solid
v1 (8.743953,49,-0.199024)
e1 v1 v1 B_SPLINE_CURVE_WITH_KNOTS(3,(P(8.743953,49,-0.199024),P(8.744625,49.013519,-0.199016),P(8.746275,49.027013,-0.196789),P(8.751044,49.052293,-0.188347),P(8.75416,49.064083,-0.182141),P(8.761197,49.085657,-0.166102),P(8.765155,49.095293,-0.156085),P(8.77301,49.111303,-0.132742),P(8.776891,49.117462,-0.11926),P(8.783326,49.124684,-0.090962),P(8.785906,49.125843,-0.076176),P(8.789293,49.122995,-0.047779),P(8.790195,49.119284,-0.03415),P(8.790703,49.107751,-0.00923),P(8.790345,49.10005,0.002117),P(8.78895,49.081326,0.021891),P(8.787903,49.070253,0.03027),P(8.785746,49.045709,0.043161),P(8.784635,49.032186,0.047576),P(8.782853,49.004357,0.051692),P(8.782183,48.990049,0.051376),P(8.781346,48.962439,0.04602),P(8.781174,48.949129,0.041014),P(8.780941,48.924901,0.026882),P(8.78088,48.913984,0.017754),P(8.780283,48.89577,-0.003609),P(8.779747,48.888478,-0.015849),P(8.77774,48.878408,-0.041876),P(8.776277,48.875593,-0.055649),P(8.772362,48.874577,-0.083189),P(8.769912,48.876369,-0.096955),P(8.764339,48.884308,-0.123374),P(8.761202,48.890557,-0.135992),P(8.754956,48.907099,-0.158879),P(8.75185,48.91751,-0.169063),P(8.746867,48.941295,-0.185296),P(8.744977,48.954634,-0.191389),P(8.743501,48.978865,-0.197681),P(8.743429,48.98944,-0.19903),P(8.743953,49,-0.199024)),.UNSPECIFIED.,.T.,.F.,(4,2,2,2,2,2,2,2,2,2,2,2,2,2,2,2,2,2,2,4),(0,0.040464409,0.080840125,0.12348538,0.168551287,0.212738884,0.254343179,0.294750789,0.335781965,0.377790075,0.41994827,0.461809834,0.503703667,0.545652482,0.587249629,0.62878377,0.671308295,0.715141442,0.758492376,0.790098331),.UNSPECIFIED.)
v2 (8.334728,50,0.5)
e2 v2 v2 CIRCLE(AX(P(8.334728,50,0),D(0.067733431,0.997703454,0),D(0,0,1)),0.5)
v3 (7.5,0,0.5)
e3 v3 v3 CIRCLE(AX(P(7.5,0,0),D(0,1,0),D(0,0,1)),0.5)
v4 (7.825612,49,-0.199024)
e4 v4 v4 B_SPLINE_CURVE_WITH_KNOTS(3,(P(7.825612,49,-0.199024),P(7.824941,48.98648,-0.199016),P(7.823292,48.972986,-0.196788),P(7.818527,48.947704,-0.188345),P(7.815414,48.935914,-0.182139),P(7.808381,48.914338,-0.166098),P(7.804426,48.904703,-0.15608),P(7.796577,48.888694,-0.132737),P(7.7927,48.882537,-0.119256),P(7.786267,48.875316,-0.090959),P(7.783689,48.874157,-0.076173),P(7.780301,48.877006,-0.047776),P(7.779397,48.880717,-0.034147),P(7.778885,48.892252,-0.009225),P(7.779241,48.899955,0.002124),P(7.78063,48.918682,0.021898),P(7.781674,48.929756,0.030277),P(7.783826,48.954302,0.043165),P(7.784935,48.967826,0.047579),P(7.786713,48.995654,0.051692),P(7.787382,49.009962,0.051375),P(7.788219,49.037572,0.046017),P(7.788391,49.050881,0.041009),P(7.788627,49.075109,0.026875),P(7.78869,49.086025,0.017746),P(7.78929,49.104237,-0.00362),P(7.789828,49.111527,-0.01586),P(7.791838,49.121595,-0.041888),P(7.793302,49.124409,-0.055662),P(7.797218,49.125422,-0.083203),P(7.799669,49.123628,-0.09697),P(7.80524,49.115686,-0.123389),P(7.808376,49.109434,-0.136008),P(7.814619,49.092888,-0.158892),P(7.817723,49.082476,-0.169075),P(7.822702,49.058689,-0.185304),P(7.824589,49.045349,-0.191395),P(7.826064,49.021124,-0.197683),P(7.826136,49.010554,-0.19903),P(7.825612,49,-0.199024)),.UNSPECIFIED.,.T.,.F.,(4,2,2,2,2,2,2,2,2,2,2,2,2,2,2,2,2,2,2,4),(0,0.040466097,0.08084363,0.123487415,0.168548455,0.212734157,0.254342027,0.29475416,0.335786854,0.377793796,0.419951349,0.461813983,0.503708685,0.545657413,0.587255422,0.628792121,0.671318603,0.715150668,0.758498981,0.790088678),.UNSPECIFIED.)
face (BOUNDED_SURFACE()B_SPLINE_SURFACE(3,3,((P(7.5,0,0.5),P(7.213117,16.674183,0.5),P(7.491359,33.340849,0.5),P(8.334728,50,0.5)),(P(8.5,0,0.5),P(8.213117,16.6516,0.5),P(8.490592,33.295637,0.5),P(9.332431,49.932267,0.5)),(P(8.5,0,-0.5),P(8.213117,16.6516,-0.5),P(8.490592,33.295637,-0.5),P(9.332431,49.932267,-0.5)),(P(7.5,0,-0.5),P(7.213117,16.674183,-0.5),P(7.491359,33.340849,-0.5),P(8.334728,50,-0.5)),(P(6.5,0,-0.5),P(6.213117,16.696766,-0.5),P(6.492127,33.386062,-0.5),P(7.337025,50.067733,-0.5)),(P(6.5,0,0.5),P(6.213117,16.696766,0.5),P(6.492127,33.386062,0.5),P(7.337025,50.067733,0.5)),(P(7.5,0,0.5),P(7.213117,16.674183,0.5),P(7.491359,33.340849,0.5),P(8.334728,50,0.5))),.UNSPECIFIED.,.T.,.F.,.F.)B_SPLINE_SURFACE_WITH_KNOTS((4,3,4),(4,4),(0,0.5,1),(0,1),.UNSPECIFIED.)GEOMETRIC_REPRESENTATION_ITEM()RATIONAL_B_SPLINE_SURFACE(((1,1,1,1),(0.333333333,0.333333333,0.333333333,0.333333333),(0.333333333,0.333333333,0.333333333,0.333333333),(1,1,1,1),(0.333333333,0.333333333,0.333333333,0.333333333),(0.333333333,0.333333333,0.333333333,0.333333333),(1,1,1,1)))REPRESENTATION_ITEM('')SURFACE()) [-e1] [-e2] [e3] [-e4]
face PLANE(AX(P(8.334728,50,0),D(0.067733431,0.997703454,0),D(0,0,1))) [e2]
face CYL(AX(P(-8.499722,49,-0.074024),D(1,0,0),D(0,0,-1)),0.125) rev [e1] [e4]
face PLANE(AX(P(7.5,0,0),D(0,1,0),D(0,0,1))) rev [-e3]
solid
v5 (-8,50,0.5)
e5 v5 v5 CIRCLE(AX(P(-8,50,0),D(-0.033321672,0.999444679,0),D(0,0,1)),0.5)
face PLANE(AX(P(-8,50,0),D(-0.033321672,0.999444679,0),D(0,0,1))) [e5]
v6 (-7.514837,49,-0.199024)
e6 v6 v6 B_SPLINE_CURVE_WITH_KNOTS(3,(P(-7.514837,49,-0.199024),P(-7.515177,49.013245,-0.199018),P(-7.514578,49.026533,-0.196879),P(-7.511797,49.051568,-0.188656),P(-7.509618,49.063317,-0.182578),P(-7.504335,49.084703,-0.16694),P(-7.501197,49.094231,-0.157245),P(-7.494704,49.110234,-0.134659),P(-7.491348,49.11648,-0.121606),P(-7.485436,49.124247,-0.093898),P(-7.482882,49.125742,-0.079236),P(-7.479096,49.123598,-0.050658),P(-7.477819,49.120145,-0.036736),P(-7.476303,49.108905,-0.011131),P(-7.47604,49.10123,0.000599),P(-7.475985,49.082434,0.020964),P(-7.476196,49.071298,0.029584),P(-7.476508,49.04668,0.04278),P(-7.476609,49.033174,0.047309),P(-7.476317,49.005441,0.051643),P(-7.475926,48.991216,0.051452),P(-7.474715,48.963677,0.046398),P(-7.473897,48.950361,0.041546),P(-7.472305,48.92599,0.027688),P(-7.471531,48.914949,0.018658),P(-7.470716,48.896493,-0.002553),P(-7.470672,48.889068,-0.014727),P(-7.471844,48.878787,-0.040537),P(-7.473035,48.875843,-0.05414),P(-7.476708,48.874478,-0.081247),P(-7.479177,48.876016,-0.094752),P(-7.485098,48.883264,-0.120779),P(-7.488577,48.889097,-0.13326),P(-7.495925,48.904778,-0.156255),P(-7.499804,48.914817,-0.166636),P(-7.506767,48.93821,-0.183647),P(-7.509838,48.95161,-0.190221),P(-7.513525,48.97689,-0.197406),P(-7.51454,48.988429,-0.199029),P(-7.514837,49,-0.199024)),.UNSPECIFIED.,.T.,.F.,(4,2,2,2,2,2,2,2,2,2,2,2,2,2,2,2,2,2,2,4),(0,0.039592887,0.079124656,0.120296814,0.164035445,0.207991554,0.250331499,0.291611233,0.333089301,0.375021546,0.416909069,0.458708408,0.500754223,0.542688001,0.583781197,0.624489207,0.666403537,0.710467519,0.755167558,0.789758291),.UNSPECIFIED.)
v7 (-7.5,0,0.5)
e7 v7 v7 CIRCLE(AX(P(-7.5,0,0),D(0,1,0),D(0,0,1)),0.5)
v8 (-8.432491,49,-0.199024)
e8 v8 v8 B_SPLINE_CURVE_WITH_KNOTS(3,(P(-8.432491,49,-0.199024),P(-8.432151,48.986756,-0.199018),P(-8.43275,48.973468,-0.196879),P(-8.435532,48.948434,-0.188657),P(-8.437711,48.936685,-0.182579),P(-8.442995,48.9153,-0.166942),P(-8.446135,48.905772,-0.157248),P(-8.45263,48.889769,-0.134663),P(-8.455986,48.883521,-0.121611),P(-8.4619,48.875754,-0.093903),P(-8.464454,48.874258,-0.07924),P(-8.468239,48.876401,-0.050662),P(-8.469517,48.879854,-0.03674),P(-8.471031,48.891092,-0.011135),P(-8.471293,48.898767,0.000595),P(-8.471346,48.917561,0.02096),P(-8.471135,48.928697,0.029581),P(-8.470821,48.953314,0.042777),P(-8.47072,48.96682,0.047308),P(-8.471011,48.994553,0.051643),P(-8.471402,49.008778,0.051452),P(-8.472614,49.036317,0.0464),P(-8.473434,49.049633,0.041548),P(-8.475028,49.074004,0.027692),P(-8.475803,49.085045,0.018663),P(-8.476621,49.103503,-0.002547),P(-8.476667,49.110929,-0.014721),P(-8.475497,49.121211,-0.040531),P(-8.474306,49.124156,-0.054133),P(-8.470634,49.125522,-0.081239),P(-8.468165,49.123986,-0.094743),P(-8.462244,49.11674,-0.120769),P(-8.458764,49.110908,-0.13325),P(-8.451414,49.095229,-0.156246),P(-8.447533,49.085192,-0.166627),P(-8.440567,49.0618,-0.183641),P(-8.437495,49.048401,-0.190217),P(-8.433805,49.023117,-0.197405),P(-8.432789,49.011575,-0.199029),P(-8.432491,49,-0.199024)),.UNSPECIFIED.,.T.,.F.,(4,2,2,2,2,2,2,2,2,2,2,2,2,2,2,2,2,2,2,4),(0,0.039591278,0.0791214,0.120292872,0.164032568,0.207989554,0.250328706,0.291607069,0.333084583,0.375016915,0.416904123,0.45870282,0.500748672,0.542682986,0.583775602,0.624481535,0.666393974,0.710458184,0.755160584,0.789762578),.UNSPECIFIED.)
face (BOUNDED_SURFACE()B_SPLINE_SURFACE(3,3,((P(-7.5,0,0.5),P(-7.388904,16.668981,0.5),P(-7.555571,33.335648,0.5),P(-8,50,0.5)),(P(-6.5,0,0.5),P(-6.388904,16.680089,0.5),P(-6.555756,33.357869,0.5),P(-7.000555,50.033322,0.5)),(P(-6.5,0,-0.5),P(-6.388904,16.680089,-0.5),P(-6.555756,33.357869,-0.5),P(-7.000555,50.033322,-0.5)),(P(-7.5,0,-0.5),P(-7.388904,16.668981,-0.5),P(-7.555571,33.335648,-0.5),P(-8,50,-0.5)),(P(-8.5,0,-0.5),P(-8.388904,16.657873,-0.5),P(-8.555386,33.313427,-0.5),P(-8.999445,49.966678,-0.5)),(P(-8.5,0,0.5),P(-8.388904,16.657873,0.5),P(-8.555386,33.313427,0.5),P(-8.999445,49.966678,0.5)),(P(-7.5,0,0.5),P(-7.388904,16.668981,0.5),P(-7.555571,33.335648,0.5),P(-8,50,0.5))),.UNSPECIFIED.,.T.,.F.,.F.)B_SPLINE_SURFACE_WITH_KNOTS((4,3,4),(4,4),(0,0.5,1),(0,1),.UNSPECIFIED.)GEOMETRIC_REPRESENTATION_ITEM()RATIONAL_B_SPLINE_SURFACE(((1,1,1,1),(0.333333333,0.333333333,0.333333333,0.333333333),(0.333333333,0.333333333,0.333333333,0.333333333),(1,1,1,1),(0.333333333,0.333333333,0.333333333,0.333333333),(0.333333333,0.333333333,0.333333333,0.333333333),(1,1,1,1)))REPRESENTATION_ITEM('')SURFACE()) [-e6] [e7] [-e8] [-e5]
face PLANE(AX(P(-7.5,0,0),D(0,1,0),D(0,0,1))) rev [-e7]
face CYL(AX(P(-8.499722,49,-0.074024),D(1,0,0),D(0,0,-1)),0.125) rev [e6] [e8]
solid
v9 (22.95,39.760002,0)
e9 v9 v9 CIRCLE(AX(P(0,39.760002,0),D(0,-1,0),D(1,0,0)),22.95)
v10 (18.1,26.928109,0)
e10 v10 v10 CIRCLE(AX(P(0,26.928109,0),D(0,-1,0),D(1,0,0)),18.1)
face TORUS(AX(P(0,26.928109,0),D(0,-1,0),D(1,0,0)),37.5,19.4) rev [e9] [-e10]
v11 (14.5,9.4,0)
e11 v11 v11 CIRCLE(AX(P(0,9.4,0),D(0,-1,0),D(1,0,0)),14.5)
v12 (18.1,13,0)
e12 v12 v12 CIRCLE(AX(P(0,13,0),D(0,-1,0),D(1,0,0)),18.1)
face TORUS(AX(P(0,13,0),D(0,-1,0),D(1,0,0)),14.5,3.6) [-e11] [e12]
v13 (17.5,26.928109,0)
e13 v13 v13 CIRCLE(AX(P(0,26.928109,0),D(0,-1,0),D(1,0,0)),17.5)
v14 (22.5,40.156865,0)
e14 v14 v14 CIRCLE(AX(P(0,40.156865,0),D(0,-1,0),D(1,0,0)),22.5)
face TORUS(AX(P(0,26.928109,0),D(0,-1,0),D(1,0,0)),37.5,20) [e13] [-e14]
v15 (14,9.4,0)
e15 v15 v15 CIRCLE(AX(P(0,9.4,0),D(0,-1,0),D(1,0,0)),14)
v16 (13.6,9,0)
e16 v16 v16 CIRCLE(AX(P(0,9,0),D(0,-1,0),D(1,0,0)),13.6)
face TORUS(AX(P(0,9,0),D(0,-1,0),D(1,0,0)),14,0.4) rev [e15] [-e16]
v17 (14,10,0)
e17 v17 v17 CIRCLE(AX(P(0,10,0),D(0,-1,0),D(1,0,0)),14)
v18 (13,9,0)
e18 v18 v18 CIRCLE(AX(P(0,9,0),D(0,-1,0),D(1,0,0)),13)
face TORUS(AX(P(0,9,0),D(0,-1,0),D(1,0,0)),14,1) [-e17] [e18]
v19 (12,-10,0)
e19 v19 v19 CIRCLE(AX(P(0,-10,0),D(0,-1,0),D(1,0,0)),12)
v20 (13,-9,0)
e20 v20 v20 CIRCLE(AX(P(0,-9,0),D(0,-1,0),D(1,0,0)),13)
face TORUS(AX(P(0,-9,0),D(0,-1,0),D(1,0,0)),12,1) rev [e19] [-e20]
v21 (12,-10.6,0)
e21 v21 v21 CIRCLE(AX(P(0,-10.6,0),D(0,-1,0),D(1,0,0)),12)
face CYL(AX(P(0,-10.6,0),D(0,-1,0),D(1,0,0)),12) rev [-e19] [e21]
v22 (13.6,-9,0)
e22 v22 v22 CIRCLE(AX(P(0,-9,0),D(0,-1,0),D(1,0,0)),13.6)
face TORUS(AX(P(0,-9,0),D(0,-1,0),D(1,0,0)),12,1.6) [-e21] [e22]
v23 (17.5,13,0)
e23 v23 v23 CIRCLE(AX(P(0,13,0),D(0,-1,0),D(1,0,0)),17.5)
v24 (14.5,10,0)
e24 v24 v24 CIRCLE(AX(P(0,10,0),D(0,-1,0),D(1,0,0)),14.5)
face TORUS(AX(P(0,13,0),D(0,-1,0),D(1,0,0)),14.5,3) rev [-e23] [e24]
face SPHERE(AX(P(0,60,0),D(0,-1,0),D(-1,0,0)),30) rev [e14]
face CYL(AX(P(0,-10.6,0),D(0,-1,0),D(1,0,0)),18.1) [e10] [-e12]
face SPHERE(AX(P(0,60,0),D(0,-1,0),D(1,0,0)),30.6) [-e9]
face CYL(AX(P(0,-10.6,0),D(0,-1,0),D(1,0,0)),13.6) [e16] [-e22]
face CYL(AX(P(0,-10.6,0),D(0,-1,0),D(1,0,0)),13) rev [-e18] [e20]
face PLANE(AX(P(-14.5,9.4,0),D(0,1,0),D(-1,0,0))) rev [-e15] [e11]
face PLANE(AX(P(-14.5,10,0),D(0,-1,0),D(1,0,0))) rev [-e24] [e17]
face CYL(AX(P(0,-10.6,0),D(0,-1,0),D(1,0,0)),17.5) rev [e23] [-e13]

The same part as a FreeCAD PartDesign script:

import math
import FreeCAD as App
import Part
import Sketcher
from FreeCAD import Vector

doc = App.newDocument("Part")
body = doc.addObject("PartDesign::Body", "Body")

# Sketch on XZ plane
sketch1 = body.newObject("Sketcher::SketchObject", "Sketch")
sketch1.AttachmentSupport = (doc.getObject("XZ_Plane"), [""])
sketch1.MapMode = "FlatFace"
sketch1.addGeometry(Part.Circle(Vector(7.5, 0, 0), Vector(0, 0, 1), 0.5), False)
sketch1.addConstraint([
    Sketcher.Constraint("PointOnObject", 0, 3, -1),
    Sketcher.Constraint("Diameter", 0, 1.0),
    Sketcher.Constraint("DistanceX", -1, 1, 0, 3, 7.5),
])

# Sketch on XY plane
sketch2 = body.newObject("Sketcher::SketchObject", "Sketch001")
sketch2.AttachmentSupport = (doc.getObject("XY_Plane"), [""])
sketch2.MapMode = "FlatFace"
sketch2.addGeometry(Part.BSplineCurve([Vector(7.5, 0, 0), Vector(7.069675, 25.011274, 0), Vector(8.334728, 50, 0)], [3, 3], [0, 1], False, 2, [1, 1, 1], False), False)
sketch2.addConstraint(Sketcher.Constraint("Block", 0))
doc.recompute()

additivepipe = body.newObject("PartDesign::AdditivePipe", "AdditivePipe")
additivepipe.Profile = sketch1
additivepipe.Spine = (sketch2, ["Edge1"])
body2 = doc.addObject("PartDesign::Body", "Body001")

# Sketch on XZ plane
sketch3 = body2.newObject("Sketcher::SketchObject", "Sketch002")
sketch3.AttachmentSupport = (doc.getObject("XZ_Plane001"), [""])
sketch3.MapMode = "FlatFace"
sketch3.addGeometry(Part.Circle(Vector(-7.5, 0, 0), Vector(0, 0, 1), 0.5), False)
sketch3.addConstraint([
    Sketcher.Constraint("PointOnObject", 0, 3, -1),
    Sketcher.Constraint("Diameter", 0, 1.0),
    Sketcher.Constraint("DistanceX", 0, 3, -1, 1, 7.5),
])

# Sketch on XY plane
sketch4 = body2.newObject("Sketcher::SketchObject", "Sketch003")
sketch4.AttachmentSupport = (doc.getObject("XY_Plane001"), [""])
sketch4.MapMode = "FlatFace"
sketch4.addGeometry(Part.BSplineCurve([Vector(-7.5, 0, 0), Vector(-7.333356, 25.003472, 0), Vector(-8, 50, 0)], [3, 3], [0, 1], False, 2, [1, 1, 1], False), False)
sketch4.addConstraint(Sketcher.Constraint("Block", 0))
doc.recompute()

additivepipe2 = body2.newObject("PartDesign::AdditivePipe", "AdditivePipe001")
additivepipe2.Profile = sketch3
additivepipe2.Spine = (sketch4, ["Edge1"])
body3 = doc.addObject("PartDesign::Body", "Body002")

# Sketch on YZ plane
sketch5 = body3.newObject("Sketcher::SketchObject", "Sketch004")
sketch5.AttachmentSupport = (doc.getObject("YZ_Plane002"), [""])
sketch5.MapMode = "FlatFace"
sketch5.addGeometry(Part.Circle(Vector(49, -0.07, 0), Vector(0, 0, 1), 0.12), False)
sketch5.addConstraint([
    Sketcher.Constraint("Diameter", 0, 0.25),
    Sketcher.Constraint("DistanceX", -1, 1, 0, 3, 49.0),
    Sketcher.Constraint("DistanceY", 0, 3, -1, 1, 0.074024),
])
pad1 = body3.newObject("PartDesign::Pad", "Pad")
pad1.Profile = sketch5
pad1.Type = "TwoLengths"
pad1.Length = 9.83358
pad1.Length2 = 9.499722
doc.recompute()

body4 = doc.addObject("PartDesign::Body", "Body003")
body4.BaseFeature = body3
boolean = body.newObject("PartDesign::Boolean", "Boolean")
boolean.Type = "Cut"
boolean.addObjects([body4])
doc.recompute()

boolean2 = body2.newObject("PartDesign::Boolean", "Boolean001")
boolean2.Type = "Cut"
boolean2.addObjects([body3])
body5 = doc.addObject("PartDesign::Body", "Body004")

# Sketch on XY plane
sketch6 = body5.newObject("Sketcher::SketchObject", "Sketch005")
sketch6.AttachmentSupport = (doc.getObject("XY_Plane004"), [""])
sketch6.MapMode = "FlatFace"
sketch6.addGeometry([
    Part.LineSegment(Vector(0, 90, 0), Vector(0, 90.6, 0)),  # 0
    Part.ArcOfCircle(Part.Circle(Vector(0, 60, 0), Vector(0, 0, 1), 30.6), math.radians(90), math.radians(221)),  # 1
    Part.ArcOfCircle(Part.Circle(Vector(-37.5, 26.93, 0), Vector(0, 0, 1), 19.4), math.radians(0), math.radians(41)),  # 2
    Part.LineSegment(Vector(-18.1, 26.93, 0), Vector(-18.1, 13, 0)),  # 3
    Part.ArcOfCircle(Part.Circle(Vector(-14.5, 13, 0), Vector(0, 0, 1), 3.6), math.radians(-180), math.radians(-90)),  # 4
    Part.LineSegment(Vector(-14.5, 9.4, 0), Vector(-14, 9.4, 0)),  # 5
    Part.ArcOfCircle(Part.Circle(Vector(-14, 9, 0), Vector(0, 0, 1), 0.4), math.radians(0), math.radians(90)),  # 6
    Part.LineSegment(Vector(-13.6, 9, 0), Vector(-13.6, -9, 0)),  # 7
    Part.ArcOfCircle(Part.Circle(Vector(-12, -9, 0), Vector(0, 0, 1), 1.6), math.radians(180), math.radians(270)),  # 8
    Part.LineSegment(Vector(-12, -10.6, 0), Vector(-12, -10, 0)),  # 9
    Part.ArcOfCircle(Part.Circle(Vector(-12, -9, 0), Vector(0, 0, 1), 1), math.radians(-180), math.radians(-90)),  # 10
    Part.LineSegment(Vector(-13, -9, 0), Vector(-13, 9, 0)),  # 11
    Part.ArcOfCircle(Part.Circle(Vector(-14, 9, 0), Vector(0, 0, 1), 1), math.radians(0), math.radians(90)),  # 12
    Part.LineSegment(Vector(-14, 10, 0), Vector(-14.5, 10, 0)),  # 13
    Part.ArcOfCircle(Part.Circle(Vector(-14.5, 13, 0), Vector(0, 0, 1), 3), math.radians(180), math.radians(270)),  # 14
    Part.LineSegment(Vector(-17.5, 13, 0), Vector(-17.5, 26.93, 0)),  # 15
    Part.ArcOfCircle(Part.Circle(Vector(-37.5, 26.93, 0), Vector(0, 0, 1), 20), math.radians(0), math.radians(41)),  # 16
    Part.ArcOfCircle(Part.Circle(Vector(0, 60, 0), Vector(0, 0, 1), 30), math.radians(90), math.radians(221)),  # 17
], False)
sketch6.addConstraint([
    Sketcher.Constraint("Coincident", 0, 2, 1, 1),
    Sketcher.Constraint("Tangent", 1, 2, 2, 2),
    Sketcher.Constraint("Tangent", 2, 1, 3, 1),
    Sketcher.Constraint("Tangent", 3, 2, 4, 1),
    Sketcher.Constraint("Tangent", 4, 2, 5, 1),
    Sketcher.Constraint("Tangent", 5, 2, 6, 2),
    Sketcher.Constraint("Tangent", 6, 1, 7, 1),
    Sketcher.Constraint("Tangent", 7, 2, 8, 1),
    Sketcher.Constraint("Coincident", 8, 2, 9, 1),
    Sketcher.Constraint("Coincident", 9, 2, 10, 2),
    Sketcher.Constraint("Tangent", 10, 1, 11, 1),
    Sketcher.Constraint("Tangent", 11, 2, 12, 1),
    Sketcher.Constraint("Tangent", 12, 2, 13, 1),
    Sketcher.Constraint("Tangent", 13, 2, 14, 2),
    Sketcher.Constraint("Tangent", 14, 1, 15, 1),
    Sketcher.Constraint("Tangent", 15, 2, 16, 1),
    Sketcher.Constraint("Tangent", 16, 2, 17, 2),
    Sketcher.Constraint("Coincident", 17, 1, 0, 1),
    Sketcher.Constraint("Vertical", 0),
    Sketcher.Constraint("Vertical", 3),
    Sketcher.Constraint("Horizontal", 5),
    Sketcher.Constraint("Vertical", 7),
    Sketcher.Constraint("Vertical", 9),
    Sketcher.Constraint("Vertical", 11),
    Sketcher.Constraint("Horizontal", 13),
    Sketcher.Constraint("Vertical", 15),
    Sketcher.Constraint("Coincident", 10, 3, 8, 3),
    Sketcher.Constraint("Coincident", 12, 3, 6, 3),
    Sketcher.Constraint("Coincident", 14, 3, 4, 3),
    Sketcher.Constraint("Coincident", 16, 3, 2, 3),
    Sketcher.Constraint("Coincident", 17, 3, 1, 3),
    Sketcher.Constraint("Equal", 10, 12),
    Sketcher.Constraint("PointOnObject", 1, 3, -2),
    Sketcher.Constraint("PointOnObject", 0, 2, -2),
    Sketcher.Constraint("Vertical", 10, 3, 8, 2),
    Sketcher.Constraint("Radius", 10, 1.0),
    Sketcher.Constraint("Radius", 14, 3.0),
    Sketcher.Constraint("Radius", 16, 20.0),
    Sketcher.Constraint("Radius", 17, 30.0),
    Sketcher.Constraint("Radius", 1, 30.6),
    Sketcher.Constraint("DistanceY", 7, 2, 7, 1, 18.0),
    Sketcher.Constraint("DistanceX", 5, 1, 5, 2, 0.5),
    Sketcher.Constraint("DistanceY", -1, 1, 1, 3, 60.0),
    Sketcher.Constraint("DistanceY", -1, 1, 4, 3, 13.0),
    Sketcher.Constraint("DistanceX", 6, 3, -1, 1, 14.0),
])
revolution = body5.newObject("PartDesign::Revolution", "Revolution")
revolution.Profile = sketch6
revolution.ReferenceAxis = (sketch6, ["V_Axis"])
revolution.Angle = 360

doc.recompute()
